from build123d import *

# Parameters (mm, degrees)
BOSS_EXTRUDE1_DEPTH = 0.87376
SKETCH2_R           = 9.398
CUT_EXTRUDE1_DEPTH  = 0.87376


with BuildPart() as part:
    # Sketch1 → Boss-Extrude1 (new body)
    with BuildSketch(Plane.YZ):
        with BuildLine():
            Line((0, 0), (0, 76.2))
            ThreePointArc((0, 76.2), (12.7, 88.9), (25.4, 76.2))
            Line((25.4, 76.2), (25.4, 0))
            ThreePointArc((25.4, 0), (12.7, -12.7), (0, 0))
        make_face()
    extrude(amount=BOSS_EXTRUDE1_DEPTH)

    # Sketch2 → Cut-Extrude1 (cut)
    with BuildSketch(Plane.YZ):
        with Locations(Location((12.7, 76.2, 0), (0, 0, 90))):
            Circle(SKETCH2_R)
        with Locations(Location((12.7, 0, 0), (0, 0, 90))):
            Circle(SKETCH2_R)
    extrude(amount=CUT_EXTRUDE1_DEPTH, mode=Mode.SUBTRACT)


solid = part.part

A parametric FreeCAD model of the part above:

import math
import FreeCAD as App
import Part
import Sketcher
from FreeCAD import Vector
Q = App.Units.Quantity

doc = App.newDocument("Part")
body = doc.addObject("PartDesign::Body", "Body")

sketch1 = body.newObject("Sketcher::SketchObject", "Sketch")
sketch1.AttachmentSupport = (doc.getObject("YZ_Plane"), [""])
sketch1.MapMode = "FlatFace"
sketch1.addGeometry([
    Part.LineSegment(Vector(0, 76.2, 0), Vector(0, 0, 0)),
    Part.ArcOfCircle(Part.Circle(Vector(12.7, 0, 0), Vector(0, 0, 1), 12.7), math.radians(180), math.radians(360)),
    Part.LineSegment(Vector(25.4, 0, 0), Vector(25.4, 76.2, 0)),
    Part.ArcOfCircle(Part.Circle(Vector(12.7, 76.2, 0), Vector(0, 0, 1), 12.7), math.radians(0), math.radians(180)),
], False)
sketch1.addConstraint([
    Sketcher.Constraint("Tangent", 0, 2, 1, 1),
    Sketcher.Constraint("Tangent", 1, 2, 2, 1),
    Sketcher.Constraint("Tangent", 2, 2, 3, 1),
    Sketcher.Constraint("Tangent", 3, 2, 0, 1),
    Sketcher.Constraint("Vertical", 0),
    Sketcher.Constraint("Vertical", 2),
    Sketcher.Constraint("Coincident", 0, 2, -1, 1),
    Sketcher.Constraint("Radius", 1, Q("0.5 in")),
    Sketcher.Constraint("DistanceY", 0, 2, 0, 1, Q("3 in")),
])
pad1 = body.newObject("PartDesign::Pad", "Pad")
pad1.Profile = sketch1
pad1.Length = Q("0.0344 in")

sketch2 = body.newObject("Sketcher::SketchObject", "Sketch001")
sketch2.AttachmentSupport = (doc.getObject("YZ_Plane"), [""])
sketch2.MapMode = "FlatFace"
sketch2.addGeometry([
    Part.Circle(Vector(12.7, 76.2, 0), Vector(0, 0, 1), 9.398),
    Part.Circle(Vector(12.7, 0, 0), Vector(0, 0, 1), 9.398),
], False)
sketch2.addConstraint([
    Sketcher.Constraint("Equal", 0, 1),
    Sketcher.Constraint("PointOnObject", 1, 3, -1),
    Sketcher.Constraint("Vertical", 0, 3, 1, 3),
    Sketcher.Constraint("Diameter", 0, Q("0.74 in")),
    Sketcher.Constraint("DistanceY", -1, 1, 0, 3, Q("3 in")),
    Sketcher.Constraint("DistanceX", -1, 1, 0, 3, Q("0.5 in")),
])
pocket1 = body.newObject("PartDesign::Pocket", "Pocket")
pocket1.Profile = sketch2
pocket1.Length = Q("0.0344 in")
pocket1.Reversed = True

doc.recompute()
